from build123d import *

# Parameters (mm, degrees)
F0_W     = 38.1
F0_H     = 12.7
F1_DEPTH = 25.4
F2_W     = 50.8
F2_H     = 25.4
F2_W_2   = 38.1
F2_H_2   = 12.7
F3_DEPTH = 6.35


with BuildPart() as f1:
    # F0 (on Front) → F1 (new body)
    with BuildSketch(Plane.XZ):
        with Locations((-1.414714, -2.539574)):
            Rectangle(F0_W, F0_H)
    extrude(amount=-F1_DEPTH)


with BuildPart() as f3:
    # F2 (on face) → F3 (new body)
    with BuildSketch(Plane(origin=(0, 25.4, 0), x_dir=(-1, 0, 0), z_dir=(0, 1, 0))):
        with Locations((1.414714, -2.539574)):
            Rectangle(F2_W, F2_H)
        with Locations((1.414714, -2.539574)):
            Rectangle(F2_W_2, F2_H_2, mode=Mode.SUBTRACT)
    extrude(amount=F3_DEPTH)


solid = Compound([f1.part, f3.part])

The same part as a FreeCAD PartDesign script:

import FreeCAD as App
import Part
import Sketcher
Q = App.Units.Quantity


def add_polygon(sketch, points):
    """Adds a closed chain of lines whose ends are joined by coincident constraints."""
    first, n = sketch.GeometryCount, len(points)
    for a, b in zip(points, points[1:] + points[:1]):
        sketch.addGeometry(Part.LineSegment(App.Vector(*a, 0), App.Vector(*b, 0)), False)
    for i in range(n):
        sketch.addConstraint(Sketcher.Constraint("Coincident", first + i, 2, first + (i + 1) % n, 1))

doc = App.newDocument("Part")
body = doc.addObject("PartDesign::Body", "Body")

# Sketch on XZ plane
sketch1 = doc.addObject("Sketcher::SketchObject", "Sketch")
body.addObject(sketch1)
sketch1.AttachmentSupport = (doc.XZ_Plane, [""])
sketch1.MapMode = "FlatFace"
add_polygon(sketch1, [(-20.464714, 3.810426), (-20.464714, -8.889574), (17.635286, -8.889574), (17.635286, 3.810426)])  # lines 0-3
sketch1.addConstraint(Sketcher.Constraint("Vertical", 0))
sketch1.addConstraint(Sketcher.Constraint("Horizontal", 1))
sketch1.addConstraint(Sketcher.Constraint("Vertical", 2))
sketch1.addConstraint(Sketcher.Constraint("Horizontal", 3))
sketch1.addConstraint(Sketcher.Constraint("DistanceX", 1, 1, 1, 2, Q("1.5 in")))
sketch1.addConstraint(Sketcher.Constraint("DistanceY", 0, 2, 0, 1, Q("0.5 in")))
sketch1.addConstraint(Sketcher.Constraint("DistanceX", 0, 2, -1, 1, Q("20.464714 mm")))
sketch1.addConstraint(Sketcher.Constraint("DistanceY", 0, 2, -1, 1, Q("8.889574 mm")))
pad1 = doc.addObject("PartDesign::Pad", "Pad")
body.addObject(pad1)
pad1.Profile = sketch1
pad1.Length = Q("1 in")
pad1.Reversed = True
body2 = doc.addObject("PartDesign::Body", "Body001")

# Sketch on XZ plane
sketch2 = doc.addObject("Sketcher::SketchObject", "Sketch001")
body2.addObject(sketch2)
sketch2.AttachmentSupport = (doc.getObject("XZ_Plane001"), [""])
sketch2.MapMode = "FlatFace"
sketch2.AttachmentOffset = App.Placement(App.Vector(0, 0, -1 * 25.4), App.Rotation())
add_polygon(sketch2, [(23.985286, 10.160426), (23.985286, -15.239574), (-26.814714, -15.239574), (-26.814714, 10.160426)])  # lines 0-3
add_polygon(sketch2, [(-20.464714, -8.889574), (17.635286, -8.889574), (17.635286, 3.810426), (-20.464714, 3.810426)])  # lines 4-7
sketch2.addConstraint(Sketcher.Constraint("Vertical", 0))
sketch2.addConstraint(Sketcher.Constraint("Horizontal", 1))
sketch2.addConstraint(Sketcher.Constraint("Vertical", 2))
sketch2.addConstraint(Sketcher.Constraint("Horizontal", 3))
sketch2.addConstraint(Sketcher.Constraint("Horizontal", 4))
sketch2.addConstraint(Sketcher.Constraint("Vertical", 5))
sketch2.addConstraint(Sketcher.Constraint("Horizontal", 6))
sketch2.addConstraint(Sketcher.Constraint("Vertical", 7))
sketch2.addConstraint(Sketcher.Constraint("DistanceX", 1, 2, 1, 1, Q("2 in")))
sketch2.addConstraint(Sketcher.Constraint("DistanceY", 0, 2, 0, 1, Q("1 in")))
sketch2.addConstraint(Sketcher.Constraint("DistanceX", 4, 1, 4, 2, Q("1.5 in")))
sketch2.addConstraint(Sketcher.Constraint("DistanceY", 5, 1, 5, 2, Q("0.5 in")))
sketch2.addConstraint(Sketcher.Constraint("DistanceX", 4, 2, 0, 2, Q("0.25 in")))
sketch2.addConstraint(Sketcher.Constraint("DistanceY", 0, 2, 4, 2, Q("0.25 in")))
sketch2.addConstraint(Sketcher.Constraint("DistanceX", -1, 1, 0, 2, Q("23.985286 mm")))
sketch2.addConstraint(Sketcher.Constraint("DistanceY", 0, 2, -1, 1, Q("15.239574 mm")))
pad2 = doc.addObject("PartDesign::Pad", "Pad001")
body2.addObject(pad2)
pad2.Profile = sketch2
pad2.Length = Q("0.25 in")
pad2.Reversed = True

doc.recompute()
